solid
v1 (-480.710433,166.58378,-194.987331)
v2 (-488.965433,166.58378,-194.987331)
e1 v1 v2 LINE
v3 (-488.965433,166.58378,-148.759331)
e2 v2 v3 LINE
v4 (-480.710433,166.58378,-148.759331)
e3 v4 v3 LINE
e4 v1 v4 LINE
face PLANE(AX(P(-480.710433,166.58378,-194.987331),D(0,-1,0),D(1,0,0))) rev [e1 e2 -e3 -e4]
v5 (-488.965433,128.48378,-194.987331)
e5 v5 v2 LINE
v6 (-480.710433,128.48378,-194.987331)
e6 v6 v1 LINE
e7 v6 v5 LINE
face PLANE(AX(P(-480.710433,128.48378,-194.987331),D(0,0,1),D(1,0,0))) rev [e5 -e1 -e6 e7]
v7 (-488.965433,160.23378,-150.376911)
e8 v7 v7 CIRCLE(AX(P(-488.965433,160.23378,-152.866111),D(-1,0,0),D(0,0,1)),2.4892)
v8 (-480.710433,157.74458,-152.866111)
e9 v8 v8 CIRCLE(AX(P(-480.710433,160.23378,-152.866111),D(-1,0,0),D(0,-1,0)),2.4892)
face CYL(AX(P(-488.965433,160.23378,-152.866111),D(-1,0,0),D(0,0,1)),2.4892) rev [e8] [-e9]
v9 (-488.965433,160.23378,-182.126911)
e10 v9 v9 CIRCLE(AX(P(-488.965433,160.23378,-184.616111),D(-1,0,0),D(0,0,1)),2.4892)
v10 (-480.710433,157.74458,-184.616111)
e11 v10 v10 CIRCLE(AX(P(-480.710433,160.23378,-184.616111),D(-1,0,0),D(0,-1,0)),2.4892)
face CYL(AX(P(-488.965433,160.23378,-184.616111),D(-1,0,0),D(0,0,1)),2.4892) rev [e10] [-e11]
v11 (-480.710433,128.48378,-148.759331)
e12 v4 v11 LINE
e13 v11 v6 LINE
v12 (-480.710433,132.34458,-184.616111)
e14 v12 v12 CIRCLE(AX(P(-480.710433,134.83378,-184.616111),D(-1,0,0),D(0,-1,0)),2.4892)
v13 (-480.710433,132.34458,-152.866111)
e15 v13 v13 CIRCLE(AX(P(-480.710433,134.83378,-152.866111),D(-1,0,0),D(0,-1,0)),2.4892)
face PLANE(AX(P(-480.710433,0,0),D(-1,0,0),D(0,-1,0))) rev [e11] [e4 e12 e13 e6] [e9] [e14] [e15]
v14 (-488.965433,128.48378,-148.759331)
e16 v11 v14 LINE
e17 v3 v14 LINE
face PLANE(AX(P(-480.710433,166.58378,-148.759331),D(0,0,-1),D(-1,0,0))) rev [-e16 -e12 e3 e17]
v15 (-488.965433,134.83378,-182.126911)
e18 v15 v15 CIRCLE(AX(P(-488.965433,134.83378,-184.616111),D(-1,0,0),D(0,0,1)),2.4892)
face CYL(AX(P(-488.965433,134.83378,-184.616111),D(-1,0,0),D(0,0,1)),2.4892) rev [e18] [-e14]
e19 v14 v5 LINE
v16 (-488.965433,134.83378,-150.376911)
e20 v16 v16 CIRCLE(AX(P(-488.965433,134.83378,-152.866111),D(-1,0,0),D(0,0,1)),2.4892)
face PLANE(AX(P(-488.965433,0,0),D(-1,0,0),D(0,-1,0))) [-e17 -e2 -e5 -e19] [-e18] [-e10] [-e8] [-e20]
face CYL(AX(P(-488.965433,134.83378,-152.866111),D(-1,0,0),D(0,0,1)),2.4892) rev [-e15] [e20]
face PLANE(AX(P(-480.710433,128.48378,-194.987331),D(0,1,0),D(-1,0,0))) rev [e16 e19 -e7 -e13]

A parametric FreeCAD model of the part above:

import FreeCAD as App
import Part
import Sketcher
Q = App.Units.Quantity


def add_polygon(sketch, points):
    """Adds a closed chain of lines whose ends are joined by coincident constraints."""
    first, n = sketch.GeometryCount, len(points)
    for a, b in zip(points, points[1:] + points[:1]):
        sketch.addGeometry(Part.LineSegment(App.Vector(*a, 0), App.Vector(*b, 0)), False)
    for i in range(n):
        sketch.addConstraint(Sketcher.Constraint("Coincident", first + i, 2, first + (i + 1) % n, 1))

doc = App.newDocument("Part")
body = doc.addObject("PartDesign::Body", "Body")

# Sketch on YZ plane
sketch1 = body.newObject("Sketcher::SketchObject", "Sketch")
sketch1.AttachmentSupport = (doc.getObject("YZ_Plane"), [""])
sketch1.MapMode = "FlatFace"
sketch1.AttachmentOffset = App.Placement(App.Vector(0, 0, -488.965433), App.Rotation())
add_polygon(sketch1, [(167, -149), (128, -149), (128, -195), (167, -195)])  # lines 0-3
sketch1.addConstraint([
    Sketcher.Constraint("Horizontal", 0),
    Sketcher.Constraint("Vertical", 1),
    Sketcher.Constraint("Horizontal", 2),
    Sketcher.Constraint("Vertical", 3),
    Sketcher.Constraint("DistanceX", 0, 2, 0, 1, Q("1.5 in")),
    Sketcher.Constraint("DistanceY", 1, 2, 1, 1, Q("1.82 in")),
    Sketcher.Constraint("DistanceX", -1, 1, 0, 2, Q("128.48378 mm")),
    Sketcher.Constraint("DistanceY", 0, 2, -1, 1, Q("148.759331 mm")),
])
pad1 = body.newObject("PartDesign::Pad", "Pad")
pad1.Profile = sketch1
pad1.Length = Q("0.325 in")

# Sketch on YZ plane
sketch2 = body.newObject("Sketcher::SketchObject", "Sketch001")
sketch2.AttachmentSupport = (doc.getObject("YZ_Plane"), [""])
sketch2.MapMode = "FlatFace"
sketch2.AttachmentOffset = App.Placement(App.Vector(0, 0, -488.965433), App.Rotation())
sketch2.addGeometry([
    Part.Circle(App.Vector(160.2, -184.6, 0), App.Vector(0, 0, 1), 2.5),
    Part.Circle(App.Vector(160.2, -152.9, 0), App.Vector(0, 0, 1), 2.5),
    Part.Circle(App.Vector(134.8, -152.9, 0), App.Vector(0, 0, 1), 2.5),
    Part.Circle(App.Vector(134.8, -184.6, 0), App.Vector(0, 0, 1), 2.5),
], False)
sketch2.addConstraint([
    Sketcher.Constraint("Equal", 0, 1),
    Sketcher.Constraint("Equal", 1, 2),
    Sketcher.Constraint("Equal", 2, 3),
    Sketcher.Constraint("Horizontal", 1, 3, 2, 3),
    Sketcher.Constraint("Horizontal", 0, 3, 3, 3),
    Sketcher.Constraint("Vertical", 0, 3, 1, 3),
    Sketcher.Constraint("Vertical", 2, 3, 3, 3),
    Sketcher.Constraint("Diameter", 0, Q("0.196 in")),
    Sketcher.Constraint("DistanceX", 2, 3, 1, 3, Q("1 in")),
    Sketcher.Constraint("DistanceY", 0, 3, 1, 3, Q("1.25 in")),
    Sketcher.Constraint("DistanceX", -1, 1, 0, 3, Q("160.23378 mm")),
    Sketcher.Constraint("DistanceY", 0, 3, -1, 1, Q("184.616111 mm")),
])
doc.recompute()
hole = body.newObject("PartDesign::Hole", "Hole")
hole.Profile = sketch2
hole.ThreadType = "None"
hole.Diameter = Q("0.196 in")
hole.DepthType = "Dimension"
hole.Depth = Q("1 in")
hole.DrillPoint = "Angled"
hole.DrillPointAngle = 118
hole.Reversed = True

doc.recompute()
